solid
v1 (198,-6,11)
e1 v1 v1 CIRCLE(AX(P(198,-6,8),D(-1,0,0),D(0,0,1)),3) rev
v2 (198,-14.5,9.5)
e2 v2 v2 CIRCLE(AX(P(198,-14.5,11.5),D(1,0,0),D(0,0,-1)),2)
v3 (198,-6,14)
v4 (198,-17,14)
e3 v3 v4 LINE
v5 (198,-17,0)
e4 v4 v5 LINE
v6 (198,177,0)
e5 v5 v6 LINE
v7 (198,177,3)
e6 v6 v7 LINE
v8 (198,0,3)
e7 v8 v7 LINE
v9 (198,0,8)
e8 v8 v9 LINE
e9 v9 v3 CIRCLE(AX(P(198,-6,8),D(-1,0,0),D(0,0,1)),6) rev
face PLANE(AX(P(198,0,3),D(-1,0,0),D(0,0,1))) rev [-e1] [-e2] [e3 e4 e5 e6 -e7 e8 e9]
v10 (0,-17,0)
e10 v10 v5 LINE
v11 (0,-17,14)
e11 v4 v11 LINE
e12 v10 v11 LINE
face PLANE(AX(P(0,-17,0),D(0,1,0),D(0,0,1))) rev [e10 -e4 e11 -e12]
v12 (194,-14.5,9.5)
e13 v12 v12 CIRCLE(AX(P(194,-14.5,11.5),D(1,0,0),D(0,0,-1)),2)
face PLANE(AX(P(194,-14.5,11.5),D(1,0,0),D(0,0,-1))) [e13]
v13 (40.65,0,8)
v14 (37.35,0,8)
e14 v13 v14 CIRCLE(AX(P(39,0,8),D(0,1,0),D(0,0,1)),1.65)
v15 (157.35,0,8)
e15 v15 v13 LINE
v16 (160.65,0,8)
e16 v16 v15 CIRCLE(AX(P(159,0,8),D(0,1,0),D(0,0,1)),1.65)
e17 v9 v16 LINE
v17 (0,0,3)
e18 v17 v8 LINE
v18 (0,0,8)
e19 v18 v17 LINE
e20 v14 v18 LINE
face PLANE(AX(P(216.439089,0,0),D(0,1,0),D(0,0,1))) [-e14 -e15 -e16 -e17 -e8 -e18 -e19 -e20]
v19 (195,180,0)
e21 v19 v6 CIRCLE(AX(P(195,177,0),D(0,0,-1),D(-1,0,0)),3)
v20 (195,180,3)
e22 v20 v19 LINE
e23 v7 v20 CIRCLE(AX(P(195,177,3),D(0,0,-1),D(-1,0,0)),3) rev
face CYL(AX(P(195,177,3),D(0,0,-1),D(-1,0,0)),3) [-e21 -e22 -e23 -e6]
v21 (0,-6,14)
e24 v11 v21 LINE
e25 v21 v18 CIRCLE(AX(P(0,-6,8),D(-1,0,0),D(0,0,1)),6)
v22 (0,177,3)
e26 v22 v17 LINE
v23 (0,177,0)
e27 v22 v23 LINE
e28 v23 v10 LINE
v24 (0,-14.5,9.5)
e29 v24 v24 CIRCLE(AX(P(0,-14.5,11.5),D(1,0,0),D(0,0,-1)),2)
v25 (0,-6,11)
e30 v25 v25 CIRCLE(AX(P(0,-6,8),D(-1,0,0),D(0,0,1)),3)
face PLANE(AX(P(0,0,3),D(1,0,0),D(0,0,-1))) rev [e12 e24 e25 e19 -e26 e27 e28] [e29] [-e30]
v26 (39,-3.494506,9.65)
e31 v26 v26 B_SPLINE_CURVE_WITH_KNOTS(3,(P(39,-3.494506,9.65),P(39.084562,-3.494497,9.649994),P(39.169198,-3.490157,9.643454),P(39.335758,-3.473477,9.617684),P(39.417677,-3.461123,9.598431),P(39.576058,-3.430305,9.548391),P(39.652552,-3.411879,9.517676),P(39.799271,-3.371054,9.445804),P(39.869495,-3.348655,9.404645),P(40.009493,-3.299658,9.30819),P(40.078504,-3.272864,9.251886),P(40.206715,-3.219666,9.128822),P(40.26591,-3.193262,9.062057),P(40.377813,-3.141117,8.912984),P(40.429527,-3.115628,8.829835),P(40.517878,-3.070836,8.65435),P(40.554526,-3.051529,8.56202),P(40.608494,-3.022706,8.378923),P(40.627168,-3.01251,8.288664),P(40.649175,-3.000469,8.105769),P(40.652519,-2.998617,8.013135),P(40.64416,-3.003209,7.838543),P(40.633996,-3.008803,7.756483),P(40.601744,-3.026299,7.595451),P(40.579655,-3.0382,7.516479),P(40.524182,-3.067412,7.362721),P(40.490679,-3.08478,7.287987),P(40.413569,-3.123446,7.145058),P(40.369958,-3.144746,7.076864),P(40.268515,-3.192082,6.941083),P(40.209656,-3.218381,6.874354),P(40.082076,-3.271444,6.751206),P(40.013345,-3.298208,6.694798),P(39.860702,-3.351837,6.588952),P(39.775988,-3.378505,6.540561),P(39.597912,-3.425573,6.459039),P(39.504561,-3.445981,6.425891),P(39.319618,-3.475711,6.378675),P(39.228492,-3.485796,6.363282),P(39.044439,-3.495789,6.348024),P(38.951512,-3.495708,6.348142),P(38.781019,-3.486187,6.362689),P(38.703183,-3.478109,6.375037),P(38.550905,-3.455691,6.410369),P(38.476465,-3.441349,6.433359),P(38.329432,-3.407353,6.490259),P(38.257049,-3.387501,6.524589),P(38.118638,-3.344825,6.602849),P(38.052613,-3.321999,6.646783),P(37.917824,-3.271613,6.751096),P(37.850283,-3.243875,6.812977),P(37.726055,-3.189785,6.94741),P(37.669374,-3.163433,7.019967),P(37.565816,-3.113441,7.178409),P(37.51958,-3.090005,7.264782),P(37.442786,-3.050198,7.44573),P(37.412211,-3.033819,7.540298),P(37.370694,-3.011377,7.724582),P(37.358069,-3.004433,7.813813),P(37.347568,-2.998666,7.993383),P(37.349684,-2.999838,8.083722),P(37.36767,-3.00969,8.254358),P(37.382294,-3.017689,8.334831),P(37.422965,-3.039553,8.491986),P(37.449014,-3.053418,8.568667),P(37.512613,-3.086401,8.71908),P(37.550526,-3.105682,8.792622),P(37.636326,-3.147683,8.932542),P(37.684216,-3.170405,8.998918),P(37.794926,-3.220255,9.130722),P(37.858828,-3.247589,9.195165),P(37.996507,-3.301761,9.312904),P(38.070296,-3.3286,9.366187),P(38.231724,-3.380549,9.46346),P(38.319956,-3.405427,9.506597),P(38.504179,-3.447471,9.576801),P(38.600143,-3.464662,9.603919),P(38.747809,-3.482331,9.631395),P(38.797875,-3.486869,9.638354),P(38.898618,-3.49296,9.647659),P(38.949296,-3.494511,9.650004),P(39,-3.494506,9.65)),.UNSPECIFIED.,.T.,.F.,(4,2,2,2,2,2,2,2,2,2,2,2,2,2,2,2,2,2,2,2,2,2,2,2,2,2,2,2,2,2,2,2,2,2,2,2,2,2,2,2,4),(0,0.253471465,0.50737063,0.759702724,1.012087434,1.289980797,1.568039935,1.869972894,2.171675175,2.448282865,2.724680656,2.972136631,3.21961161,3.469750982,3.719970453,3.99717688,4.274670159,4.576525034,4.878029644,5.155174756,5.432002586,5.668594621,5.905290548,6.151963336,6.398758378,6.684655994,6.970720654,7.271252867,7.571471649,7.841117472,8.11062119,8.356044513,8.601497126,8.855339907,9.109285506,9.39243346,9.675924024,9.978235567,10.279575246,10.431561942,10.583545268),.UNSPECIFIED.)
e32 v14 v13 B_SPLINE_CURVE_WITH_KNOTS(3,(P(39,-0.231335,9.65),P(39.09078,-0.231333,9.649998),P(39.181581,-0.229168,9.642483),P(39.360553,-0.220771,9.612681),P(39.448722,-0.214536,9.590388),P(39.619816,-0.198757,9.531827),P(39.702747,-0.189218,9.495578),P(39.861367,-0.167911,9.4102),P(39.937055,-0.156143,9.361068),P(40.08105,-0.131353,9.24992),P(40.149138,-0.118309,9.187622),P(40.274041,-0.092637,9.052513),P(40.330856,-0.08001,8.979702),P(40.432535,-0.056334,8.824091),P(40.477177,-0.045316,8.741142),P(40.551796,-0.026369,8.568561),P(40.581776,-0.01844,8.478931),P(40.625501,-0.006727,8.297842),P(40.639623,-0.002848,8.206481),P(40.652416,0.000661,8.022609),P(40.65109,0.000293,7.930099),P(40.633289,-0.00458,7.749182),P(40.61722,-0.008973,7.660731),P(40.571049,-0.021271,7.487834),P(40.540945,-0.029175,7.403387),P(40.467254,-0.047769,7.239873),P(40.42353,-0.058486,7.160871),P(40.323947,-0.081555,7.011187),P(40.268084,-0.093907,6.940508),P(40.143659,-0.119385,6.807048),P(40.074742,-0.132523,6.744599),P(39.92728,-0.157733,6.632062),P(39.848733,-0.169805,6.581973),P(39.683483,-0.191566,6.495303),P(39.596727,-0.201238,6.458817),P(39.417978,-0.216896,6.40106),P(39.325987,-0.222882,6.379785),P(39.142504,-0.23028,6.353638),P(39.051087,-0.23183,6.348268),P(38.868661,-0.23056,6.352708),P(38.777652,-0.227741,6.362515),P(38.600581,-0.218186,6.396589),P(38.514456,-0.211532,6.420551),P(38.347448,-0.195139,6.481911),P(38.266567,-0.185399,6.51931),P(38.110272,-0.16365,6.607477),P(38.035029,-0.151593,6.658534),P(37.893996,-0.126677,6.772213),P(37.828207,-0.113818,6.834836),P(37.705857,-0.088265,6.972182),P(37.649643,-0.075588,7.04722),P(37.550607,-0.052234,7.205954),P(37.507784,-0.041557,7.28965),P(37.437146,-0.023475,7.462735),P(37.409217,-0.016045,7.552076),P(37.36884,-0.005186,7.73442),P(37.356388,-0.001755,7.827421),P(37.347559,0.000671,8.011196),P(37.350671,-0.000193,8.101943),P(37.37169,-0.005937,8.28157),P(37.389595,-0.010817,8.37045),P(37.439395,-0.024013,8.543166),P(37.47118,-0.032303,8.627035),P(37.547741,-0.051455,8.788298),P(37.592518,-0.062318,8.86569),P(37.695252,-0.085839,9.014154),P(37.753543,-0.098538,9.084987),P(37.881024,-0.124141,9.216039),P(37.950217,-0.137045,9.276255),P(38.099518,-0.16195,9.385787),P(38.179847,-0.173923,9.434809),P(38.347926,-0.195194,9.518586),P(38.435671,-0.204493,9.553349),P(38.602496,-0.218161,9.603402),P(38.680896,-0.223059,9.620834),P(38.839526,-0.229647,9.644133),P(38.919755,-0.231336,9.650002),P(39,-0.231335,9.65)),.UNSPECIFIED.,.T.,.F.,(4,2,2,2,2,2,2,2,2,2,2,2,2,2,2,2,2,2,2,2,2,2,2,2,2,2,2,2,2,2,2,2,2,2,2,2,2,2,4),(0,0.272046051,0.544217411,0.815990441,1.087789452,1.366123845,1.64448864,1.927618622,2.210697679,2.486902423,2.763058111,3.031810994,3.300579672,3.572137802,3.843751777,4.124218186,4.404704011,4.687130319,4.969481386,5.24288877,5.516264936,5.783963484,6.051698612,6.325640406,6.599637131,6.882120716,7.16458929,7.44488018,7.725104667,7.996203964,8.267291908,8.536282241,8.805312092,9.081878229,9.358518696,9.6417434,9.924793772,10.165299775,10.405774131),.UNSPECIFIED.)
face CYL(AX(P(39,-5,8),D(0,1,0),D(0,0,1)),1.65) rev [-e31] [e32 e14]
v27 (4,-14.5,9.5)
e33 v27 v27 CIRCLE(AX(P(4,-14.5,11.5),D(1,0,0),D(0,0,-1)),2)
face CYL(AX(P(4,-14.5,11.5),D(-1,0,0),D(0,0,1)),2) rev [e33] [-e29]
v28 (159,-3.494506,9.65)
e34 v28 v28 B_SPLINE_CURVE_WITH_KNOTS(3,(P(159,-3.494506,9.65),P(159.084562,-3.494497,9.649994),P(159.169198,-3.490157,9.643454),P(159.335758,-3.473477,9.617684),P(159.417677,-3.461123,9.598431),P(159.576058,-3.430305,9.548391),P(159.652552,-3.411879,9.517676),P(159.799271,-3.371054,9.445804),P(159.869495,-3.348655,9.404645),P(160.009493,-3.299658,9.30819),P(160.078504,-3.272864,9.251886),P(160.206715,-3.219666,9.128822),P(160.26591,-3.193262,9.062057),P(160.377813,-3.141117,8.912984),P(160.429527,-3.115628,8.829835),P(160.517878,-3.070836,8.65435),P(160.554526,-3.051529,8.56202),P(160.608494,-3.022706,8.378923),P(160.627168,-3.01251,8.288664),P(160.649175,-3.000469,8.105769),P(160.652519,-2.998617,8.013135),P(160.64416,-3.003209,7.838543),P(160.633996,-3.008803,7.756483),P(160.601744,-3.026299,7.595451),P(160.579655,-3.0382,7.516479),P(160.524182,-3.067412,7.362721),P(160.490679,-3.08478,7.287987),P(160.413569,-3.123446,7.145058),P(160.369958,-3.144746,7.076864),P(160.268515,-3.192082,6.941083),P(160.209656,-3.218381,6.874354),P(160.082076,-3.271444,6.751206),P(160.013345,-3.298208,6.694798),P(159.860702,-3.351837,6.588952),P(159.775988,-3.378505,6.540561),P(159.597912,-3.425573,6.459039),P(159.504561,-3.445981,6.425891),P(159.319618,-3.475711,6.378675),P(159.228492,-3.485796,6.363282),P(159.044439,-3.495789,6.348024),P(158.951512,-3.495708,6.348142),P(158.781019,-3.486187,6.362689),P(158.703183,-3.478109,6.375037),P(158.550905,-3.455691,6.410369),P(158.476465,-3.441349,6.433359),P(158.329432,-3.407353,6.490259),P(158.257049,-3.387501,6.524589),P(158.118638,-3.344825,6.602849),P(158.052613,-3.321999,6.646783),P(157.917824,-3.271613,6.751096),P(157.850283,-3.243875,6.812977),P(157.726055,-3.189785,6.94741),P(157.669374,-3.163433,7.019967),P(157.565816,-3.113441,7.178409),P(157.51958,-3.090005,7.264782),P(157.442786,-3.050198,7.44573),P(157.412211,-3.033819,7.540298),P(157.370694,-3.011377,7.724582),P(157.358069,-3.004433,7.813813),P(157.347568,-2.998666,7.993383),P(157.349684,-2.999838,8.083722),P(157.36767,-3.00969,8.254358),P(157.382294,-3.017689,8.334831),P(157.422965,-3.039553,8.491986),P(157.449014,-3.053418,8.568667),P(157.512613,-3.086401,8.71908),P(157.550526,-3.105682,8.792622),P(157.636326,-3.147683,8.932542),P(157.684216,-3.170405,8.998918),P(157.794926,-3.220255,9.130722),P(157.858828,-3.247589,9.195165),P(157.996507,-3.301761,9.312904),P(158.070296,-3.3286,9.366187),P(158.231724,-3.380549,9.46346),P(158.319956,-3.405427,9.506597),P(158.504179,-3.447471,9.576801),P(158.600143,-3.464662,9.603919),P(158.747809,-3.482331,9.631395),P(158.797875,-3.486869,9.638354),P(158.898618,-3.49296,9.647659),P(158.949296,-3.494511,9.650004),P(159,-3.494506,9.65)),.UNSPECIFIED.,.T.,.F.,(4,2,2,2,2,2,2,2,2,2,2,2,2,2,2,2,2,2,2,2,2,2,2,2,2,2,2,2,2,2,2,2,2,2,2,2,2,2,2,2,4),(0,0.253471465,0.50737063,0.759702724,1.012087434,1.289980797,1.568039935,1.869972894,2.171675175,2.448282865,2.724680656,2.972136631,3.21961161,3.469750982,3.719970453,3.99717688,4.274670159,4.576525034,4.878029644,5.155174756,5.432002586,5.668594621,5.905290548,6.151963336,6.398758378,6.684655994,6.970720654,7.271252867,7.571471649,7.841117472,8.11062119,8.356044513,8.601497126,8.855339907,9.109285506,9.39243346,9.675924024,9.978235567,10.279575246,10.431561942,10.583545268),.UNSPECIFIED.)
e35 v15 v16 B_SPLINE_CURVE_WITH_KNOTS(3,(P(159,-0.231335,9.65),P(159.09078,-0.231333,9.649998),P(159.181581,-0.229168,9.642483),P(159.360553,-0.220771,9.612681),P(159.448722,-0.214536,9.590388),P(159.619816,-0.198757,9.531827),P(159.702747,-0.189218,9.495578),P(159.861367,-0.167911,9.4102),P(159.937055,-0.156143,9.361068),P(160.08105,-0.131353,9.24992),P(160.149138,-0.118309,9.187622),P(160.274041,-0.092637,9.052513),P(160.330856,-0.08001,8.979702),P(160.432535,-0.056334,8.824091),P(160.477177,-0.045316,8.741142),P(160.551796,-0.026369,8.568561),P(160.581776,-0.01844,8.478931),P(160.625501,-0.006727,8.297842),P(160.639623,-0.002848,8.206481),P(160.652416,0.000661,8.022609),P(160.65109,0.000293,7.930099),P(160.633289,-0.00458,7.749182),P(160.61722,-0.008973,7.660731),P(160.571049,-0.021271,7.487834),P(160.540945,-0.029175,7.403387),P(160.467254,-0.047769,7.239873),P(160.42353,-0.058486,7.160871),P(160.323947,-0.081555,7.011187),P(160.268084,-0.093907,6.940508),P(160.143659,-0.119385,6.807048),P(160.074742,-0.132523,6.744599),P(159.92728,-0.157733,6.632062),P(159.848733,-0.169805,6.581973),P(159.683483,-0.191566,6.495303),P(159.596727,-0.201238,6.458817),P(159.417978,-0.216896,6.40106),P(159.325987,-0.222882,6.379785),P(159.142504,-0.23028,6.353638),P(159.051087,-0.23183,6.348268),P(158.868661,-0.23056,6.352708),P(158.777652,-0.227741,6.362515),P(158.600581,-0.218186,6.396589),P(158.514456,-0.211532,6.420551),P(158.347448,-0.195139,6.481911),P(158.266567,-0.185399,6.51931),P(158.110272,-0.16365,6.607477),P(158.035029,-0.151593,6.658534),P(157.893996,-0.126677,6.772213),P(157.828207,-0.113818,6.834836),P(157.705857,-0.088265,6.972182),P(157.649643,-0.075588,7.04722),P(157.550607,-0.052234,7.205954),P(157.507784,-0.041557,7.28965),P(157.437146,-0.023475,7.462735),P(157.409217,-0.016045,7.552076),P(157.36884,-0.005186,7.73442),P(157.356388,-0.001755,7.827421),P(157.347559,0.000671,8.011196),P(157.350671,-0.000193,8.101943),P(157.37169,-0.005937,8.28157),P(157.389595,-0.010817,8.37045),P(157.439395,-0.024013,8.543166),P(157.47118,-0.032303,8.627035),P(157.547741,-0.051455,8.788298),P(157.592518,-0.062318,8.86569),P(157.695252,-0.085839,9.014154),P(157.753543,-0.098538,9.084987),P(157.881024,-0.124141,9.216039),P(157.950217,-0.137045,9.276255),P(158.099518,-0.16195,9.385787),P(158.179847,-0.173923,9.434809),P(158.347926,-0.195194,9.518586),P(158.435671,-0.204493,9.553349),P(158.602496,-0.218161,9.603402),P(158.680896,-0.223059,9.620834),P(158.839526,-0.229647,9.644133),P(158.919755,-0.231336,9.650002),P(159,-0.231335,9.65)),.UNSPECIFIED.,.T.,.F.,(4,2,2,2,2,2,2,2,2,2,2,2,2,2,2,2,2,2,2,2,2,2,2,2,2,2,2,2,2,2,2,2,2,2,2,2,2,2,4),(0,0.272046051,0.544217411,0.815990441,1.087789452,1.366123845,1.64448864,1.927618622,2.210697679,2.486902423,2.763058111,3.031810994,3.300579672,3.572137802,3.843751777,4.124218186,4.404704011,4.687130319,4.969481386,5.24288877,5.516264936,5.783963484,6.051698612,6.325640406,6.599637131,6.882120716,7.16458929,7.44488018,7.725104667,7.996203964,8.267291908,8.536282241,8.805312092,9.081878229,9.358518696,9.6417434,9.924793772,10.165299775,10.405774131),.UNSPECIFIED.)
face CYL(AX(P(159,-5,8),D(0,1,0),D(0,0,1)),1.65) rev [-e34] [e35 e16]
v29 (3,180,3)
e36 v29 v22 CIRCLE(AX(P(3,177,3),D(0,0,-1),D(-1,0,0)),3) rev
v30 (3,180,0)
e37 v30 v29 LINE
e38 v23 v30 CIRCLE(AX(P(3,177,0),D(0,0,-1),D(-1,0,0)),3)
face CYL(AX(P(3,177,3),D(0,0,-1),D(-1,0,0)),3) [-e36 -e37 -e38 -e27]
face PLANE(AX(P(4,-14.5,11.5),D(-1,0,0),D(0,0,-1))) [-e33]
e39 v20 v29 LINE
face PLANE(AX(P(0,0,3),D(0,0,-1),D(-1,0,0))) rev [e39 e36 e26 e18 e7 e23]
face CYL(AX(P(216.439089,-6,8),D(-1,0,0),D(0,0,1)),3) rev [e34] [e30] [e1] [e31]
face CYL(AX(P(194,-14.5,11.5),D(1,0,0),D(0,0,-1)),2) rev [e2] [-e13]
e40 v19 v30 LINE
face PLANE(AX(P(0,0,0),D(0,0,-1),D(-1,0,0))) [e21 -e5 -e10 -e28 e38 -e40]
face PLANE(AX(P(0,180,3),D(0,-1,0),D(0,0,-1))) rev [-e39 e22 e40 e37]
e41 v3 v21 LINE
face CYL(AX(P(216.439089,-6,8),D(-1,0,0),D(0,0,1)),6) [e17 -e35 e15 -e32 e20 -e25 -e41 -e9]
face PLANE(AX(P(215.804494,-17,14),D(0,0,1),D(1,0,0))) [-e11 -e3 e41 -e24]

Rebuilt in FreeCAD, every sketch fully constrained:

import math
import FreeCAD as App
import Part
import Sketcher

V = App.Vector
Q = App.Units.Quantity


def edges_at(feature, points):
    """Names of the edges that pass closest to the given points."""
    edges = feature.Shape.Edges
    near = lambda p: min(range(len(edges)), key=lambda i: edges[i].distToShape(Part.Vertex(*p))[0])
    return sorted({f"Edge{near(p) + 1}" for p in points})


def add_polygon(sketch, points):
    """Adds a closed chain of lines whose ends are joined by coincident constraints."""
    first, n = sketch.GeometryCount, len(points)
    for a, b in zip(points, points[1:] + points[:1]):
        sketch.addGeometry(Part.LineSegment(App.Vector(*a, 0), App.Vector(*b, 0)), False)
    for i in range(n):
        sketch.addConstraint(Sketcher.Constraint("Coincident", first + i, 2, first + (i + 1) % n, 1))

doc = App.newDocument("Part")
body = doc.addObject("PartDesign::Body", "Body")

sketch1 = body.newObject("Sketcher::SketchObject", "Sketch")
sketch1.AttachmentSupport = (doc.getObject("XY_Plane"), [""])
sketch1.MapMode = "FlatFace"
add_polygon(sketch1, [(0, 180), (0, 0), (198, 0), (198, 180)])
sketch1.addConstraint([
    Sketcher.Constraint("Vertical", 0),
    Sketcher.Constraint("Horizontal", 1),
    Sketcher.Constraint("Vertical", 2),
    Sketcher.Constraint("Horizontal", 3),
    Sketcher.Constraint("Coincident", 0, 2, -1, 1),
    Sketcher.Constraint("DistanceX", 1, 1, 1, 2, Q("198 mm")),
    Sketcher.Constraint("DistanceY", 0, 2, 0, 1, Q("180 mm")),
])
pad1 = body.newObject("PartDesign::Pad", "Pad")
pad1.Profile = sketch1
pad1.Length = 3

sketch2 = body.newObject("Sketcher::SketchObject", "Sketch001")
sketch2.AttachmentSupport = (doc.getObject("YZ_Plane"), [""])
sketch2.MapMode = "FlatFace"
sketch2.addGeometry([
    Part.LineSegment(V(0, 8, 0), V(0, 0, 0)),
    Part.LineSegment(V(0, 0, 0), V(-12, 0, 0)),
    Part.LineSegment(V(-12, 0, 0), V(-12, 8, 0)),
    Part.ArcOfCircle(Part.Circle(V(-6, 8, 0), V(0, 0, 1), 6), math.radians(0), math.radians(180)),
    Part.Circle(V(-6, 8, 0), V(0, 0, 1), 3),
], False)
sketch2.addConstraint([
    Sketcher.Constraint("Coincident", 0, 2, 1, 1),
    Sketcher.Constraint("Coincident", 1, 2, 2, 1),
    Sketcher.Constraint("Tangent", 2, 2, 3, 2),
    Sketcher.Constraint("Tangent", 3, 1, 0, 1),
    Sketcher.Constraint("Vertical", 0),
    Sketcher.Constraint("Horizontal", 1),
    Sketcher.Constraint("Vertical", 2),
    Sketcher.Constraint("Coincident", 0, 2, -1, 1),
    Sketcher.Constraint("Coincident", 4, 3, 3, 3),
    Sketcher.Constraint("Diameter", 4, Q("6 mm")),
    Sketcher.Constraint("Radius", 3, Q("6 mm")),
    Sketcher.Constraint("DistanceY", 0, 2, 0, 1, Q("8 mm")),
])
pad2 = body.newObject("PartDesign::Pad", "Pad001")
pad2.Profile = sketch2
pad2.Length = 198

sketch3 = body.newObject("Sketcher::SketchObject", "Sketch002")
sketch3.AttachmentSupport = (doc.getObject("XZ_Plane"), [""])
sketch3.MapMode = "FlatFace"
sketch3.addGeometry([
    Part.Circle(V(39, 8, 0), V(0, 0, 1), 1.6),
    Part.Circle(V(159, 8, 0), V(0, 0, 1), 1.6),
], False)
sketch3.addConstraint([
    Sketcher.Constraint("Equal", 0, 1),
    Sketcher.Constraint("Horizontal", 0, 3, 1, 3),
    Sketcher.Constraint("Diameter", 0, Q("3.3 mm")),
    Sketcher.Constraint("DistanceX", -1, 1, 0, 3, Q("39 mm")),
    Sketcher.Constraint("DistanceY", -1, 1, 0, 3, Q("8 mm")),
    Sketcher.Constraint("DistanceX", -1, 1, 1, 3, Q("159 mm")),
])
pocket1 = body.newObject("PartDesign::Pocket", "Pocket")
pocket1.Profile = sketch3
pocket1.Length = 5
pocket1.Reversed = True

sketch4 = body.newObject("Sketcher::SketchObject", "Sketch003")
sketch4.AttachmentSupport = (doc.getObject("XZ_Plane"), [""])
sketch4.MapMode = "FlatFace"
add_polygon(sketch4, [(0, 3), (0, 0), (198, 0), (198, 3)])
sketch4.addConstraint([
    Sketcher.Constraint("Vertical", 0),
    Sketcher.Constraint("Horizontal", 1),
    Sketcher.Constraint("Vertical", 2),
    Sketcher.Constraint("Horizontal", 3),
    Sketcher.Constraint("Coincident", 0, 2, -1, 1),
    Sketcher.Constraint("DistanceX", 1, 1, 1, 2, Q("198 mm")),
    Sketcher.Constraint("DistanceY", 0, 2, 0, 1, Q("3 mm")),
])
pad3 = body.newObject("PartDesign::Pad", "Pad002")
pad3.Profile = sketch4
pad3.Length = 17

sketch5 = body.newObject("Sketcher::SketchObject", "Sketch004")
sketch5.AttachmentSupport = (doc.getObject("XY_Plane"), [""])
sketch5.MapMode = "FlatFace"
sketch5.AttachmentOffset = App.Placement(V(0, 0, 3), App.Rotation())
add_polygon(sketch5, [(0, -15), (0, -17), (198, -17), (198, -15)])
sketch5.addConstraint([
    Sketcher.Constraint("Vertical", 0),
    Sketcher.Constraint("Horizontal", 1),
    Sketcher.Constraint("Vertical", 2),
    Sketcher.Constraint("Horizontal", 3),
    Sketcher.Constraint("PointOnObject", 0, 2, -2),
    Sketcher.Constraint("DistanceX", 1, 1, 1, 2, Q("198 mm")),
    Sketcher.Constraint("DistanceY", 0, 2, 0, 1, Q("2 mm")),
    Sketcher.Constraint("DistanceY", 0, 2, -1, 1, Q("17 mm")),
])
pad4 = body.newObject("PartDesign::Pad", "Pad003")
pad4.Profile = sketch5
pad4.Length = 10
doc.recompute()

fillet = body.newObject("PartDesign::Fillet", "Fillet")
fillet.Base = (pad4, edges_at(pad4, [
    (198, 180, 1.5),
    (0, 180, 1.5),
    (0, -17, 6.5),
    (198, -17, 6.5),
]))
fillet.Radius = 3

sketch6 = body.newObject("Sketcher::SketchObject", "Sketch005")
sketch6.AttachmentSupport = (doc.getObject("YZ_Plane"), [""])
sketch6.MapMode = "FlatFace"
sketch6.addGeometry([
    Part.LineSegment(V(-6, 14, 0), V(-6, 11, 0)),
    Part.ArcOfCircle(Part.Circle(V(-6, 8, 0), V(0, 0, 1), 3), math.radians(90), math.radians(270)),
    Part.LineSegment(V(-6, 5, 0), V(-6, 0, 0)),
    Part.LineSegment(V(-6, 0, 0), V(-17, 0, 0)),
    Part.LineSegment(V(-17, 0, 0), V(-17, 14, 0)),
    Part.LineSegment(V(-17, 14, 0), V(-6, 14, 0)),
], False)
sketch6.addConstraint([
    Sketcher.Constraint("Coincident", 0, 2, 1, 1),
    Sketcher.Constraint("Coincident", 1, 2, 2, 1),
    Sketcher.Constraint("Coincident", 2, 2, 3, 1),
    Sketcher.Constraint("Coincident", 3, 2, 4, 1),
    Sketcher.Constraint("Coincident", 4, 2, 5, 1),
    Sketcher.Constraint("Coincident", 5, 2, 0, 1),
    Sketcher.Constraint("Vertical", 0),
    Sketcher.Constraint("Vertical", 2),
    Sketcher.Constraint("Horizontal", 3),
    Sketcher.Constraint("Vertical", 4),
    Sketcher.Constraint("Horizontal", 5),
    Sketcher.Constraint("PointOnObject", 2, 2, -1),
    Sketcher.Constraint("Vertical", 1, 3, 0, 2),
    Sketcher.Constraint("Vertical", 0, 2, 1, 2),
    Sketcher.Constraint("Radius", 1, Q("3 mm")),
    Sketcher.Constraint("DistanceX", 3, 2, 3, 1, Q("11 mm")),
    Sketcher.Constraint("DistanceY", 0, 2, 0, 1, Q("3 mm")),
    Sketcher.Constraint("DistanceY", 2, 2, 2, 1, Q("5 mm")),
    Sketcher.Constraint("DistanceX", 1, 3, -1, 1, Q("6 mm")),
])
pad5 = body.newObject("PartDesign::Pad", "Pad004")
pad5.Profile = sketch6
pad5.Length = 198

sketch7 = body.newObject("Sketcher::SketchObject", "Sketch006")
sketch7.AttachmentSupport = (doc.getObject("YZ_Plane"), [""])
sketch7.MapMode = "FlatFace"
sketch7.AttachmentOffset = App.Placement(V(0, 0, 198), App.Rotation())
sketch7.addGeometry(Part.Circle(V(-14.5, 11.5, 0), V(0, 0, 1), 2), False)
sketch7.addConstraint([
    Sketcher.Constraint("Diameter", 0, Q("4 mm")),
    Sketcher.Constraint("DistanceX", 0, 3, -1, 1, Q("14.5 mm")),
    Sketcher.Constraint("DistanceY", -1, 1, 0, 3, Q("11.5 mm")),
])
pocket2 = body.newObject("PartDesign::Pocket", "Pocket001")
pocket2.Profile = sketch7
pocket2.Length = 4
doc.recompute()

datumplane = body.newObject("PartDesign::Plane", "DatumPlane")
datumplane.AttachmentSupport = (doc.getObject("YZ_Plane"), [""])
datumplane.MapMode = "FlatFace"
datumplane.AttachmentOffset = App.Placement(V(0, 0, 99), App.Rotation())
mirrored = body.newObject("PartDesign::Mirrored", "Mirrored")
mirrored.Originals = [pocket2]
mirrored.MirrorPlane = (datumplane, [""])
body.Tip = mirrored

doc.recompute()
